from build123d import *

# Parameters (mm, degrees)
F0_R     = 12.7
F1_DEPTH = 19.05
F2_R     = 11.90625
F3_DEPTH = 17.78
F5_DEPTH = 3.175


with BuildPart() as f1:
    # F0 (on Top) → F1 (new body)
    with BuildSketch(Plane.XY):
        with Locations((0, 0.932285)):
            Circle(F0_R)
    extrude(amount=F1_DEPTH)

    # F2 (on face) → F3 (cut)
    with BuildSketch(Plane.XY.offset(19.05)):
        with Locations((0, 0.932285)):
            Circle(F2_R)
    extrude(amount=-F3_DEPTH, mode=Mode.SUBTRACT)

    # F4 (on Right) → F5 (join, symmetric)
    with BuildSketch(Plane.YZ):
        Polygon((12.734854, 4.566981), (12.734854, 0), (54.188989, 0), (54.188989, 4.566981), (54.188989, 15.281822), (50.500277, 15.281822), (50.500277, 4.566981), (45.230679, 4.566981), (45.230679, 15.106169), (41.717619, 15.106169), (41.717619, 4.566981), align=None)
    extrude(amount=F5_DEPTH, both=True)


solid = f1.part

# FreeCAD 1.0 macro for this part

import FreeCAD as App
import Part
import Sketcher

V = App.Vector
Q = App.Units.Quantity


def add_polygon(sketch, points):
    """Adds a closed chain of lines whose ends are joined by coincident constraints."""
    first, n = sketch.GeometryCount, len(points)
    for a, b in zip(points, points[1:] + points[:1]):
        sketch.addGeometry(Part.LineSegment(App.Vector(*a, 0), App.Vector(*b, 0)), False)
    for i in range(n):
        sketch.addConstraint(Sketcher.Constraint("Coincident", first + i, 2, first + (i + 1) % n, 1))

doc = App.newDocument("Part")
body = doc.addObject("PartDesign::Body", "Body")

# Sketch on XY plane
sketch1 = body.newObject("Sketcher::SketchObject", "Sketch")
sketch1.AttachmentSupport = (doc.getObject("XY_Plane"), [""])
sketch1.MapMode = "FlatFace"
sketch1.addGeometry(Part.Circle(V(0, 1, 0), V(0, 0, 1), 13), False)
sketch1.addConstraint([
    Sketcher.Constraint("PointOnObject", 0, 3, -2),
    Sketcher.Constraint("Diameter", 0, Q("1 in")),
    Sketcher.Constraint("DistanceY", -1, 1, 0, 3, 0.932285),
])
pad1 = body.newObject("PartDesign::Pad", "Pad")
pad1.Profile = sketch1
pad1.Length = Q("0.75 in")

# Sketch on XY plane
sketch2 = body.newObject("Sketcher::SketchObject", "Sketch001")
sketch2.AttachmentSupport = (doc.getObject("XY_Plane"), [""])
sketch2.MapMode = "FlatFace"
sketch2.AttachmentOffset = App.Placement(V(0, 0, 0.75 * 25.4), App.Rotation())
sketch2.addGeometry(Part.Circle(V(0, 1, 0), V(0, 0, 1), 12), False)
sketch2.addConstraint([
    Sketcher.Constraint("PointOnObject", 0, 3, -2),
    Sketcher.Constraint("Diameter", 0, Q("0.9375 in")),
    Sketcher.Constraint("DistanceY", -1, 1, 0, 3, 0.932285),
])
pocket1 = body.newObject("PartDesign::Pocket", "Pocket")
pocket1.Profile = sketch2
pocket1.Length = Q("0.7 in")

# Sketch on YZ plane
sketch3 = body.newObject("Sketcher::SketchObject", "Sketch002")
sketch3.AttachmentSupport = (doc.getObject("YZ_Plane"), [""])
sketch3.MapMode = "FlatFace"
add_polygon(sketch3, [(12.7, 4.6), (12.7, 0), (54.2, 0), (54.2, 15.3), (50.5, 15.3), (50.5, 4.6), (45.2, 4.6), (45.2, 15.1), (41.7, 15.1), (41.7, 4.6)])  # lines 0-9
sketch3.addConstraint([
    Sketcher.Constraint("Vertical", 0),
    Sketcher.Constraint("Horizontal", 1),
    Sketcher.Constraint("Vertical", 2),
    Sketcher.Constraint("Horizontal", 3),
    Sketcher.Constraint("Vertical", 4),
    Sketcher.Constraint("Horizontal", 5),
    Sketcher.Constraint("Vertical", 6),
    Sketcher.Constraint("Horizontal", 7),
    Sketcher.Constraint("Vertical", 8),
    Sketcher.Constraint("Horizontal", 9),
    Sketcher.Constraint("PointOnObject", 0, 2, -1),
    Sketcher.Constraint("Horizontal", 5, 2, 8, 2),
    Sketcher.Constraint("DistanceX", -1, 1, 3, 2, Q("1.9881999 in")),
    Sketcher.Constraint("DistanceX", 7, 2, 7, 1, 3.51306),
    Sketcher.Constraint("DistanceY", 0, 2, 0, 1, 4.566981),
    Sketcher.Constraint("DistanceY", 4, 2, 4, 1, 10.714841),
    Sketcher.Constraint("DistanceX", 1, 1, 1, 2, 41.454135),
    Sketcher.Constraint("DistanceX", 3, 2, 3, 1, 3.688712),
    Sketcher.Constraint("DistanceX", 5, 2, 5, 1, 5.269598),
    Sketcher.Constraint("DistanceY", 6, 1, 6, 2, 10.539188),
])
pad2 = body.newObject("PartDesign::Pad", "Pad001")
pad2.Profile = sketch3
pad2.Length = Q("0.25 in")
pad2.Midplane = True

doc.recompute()
